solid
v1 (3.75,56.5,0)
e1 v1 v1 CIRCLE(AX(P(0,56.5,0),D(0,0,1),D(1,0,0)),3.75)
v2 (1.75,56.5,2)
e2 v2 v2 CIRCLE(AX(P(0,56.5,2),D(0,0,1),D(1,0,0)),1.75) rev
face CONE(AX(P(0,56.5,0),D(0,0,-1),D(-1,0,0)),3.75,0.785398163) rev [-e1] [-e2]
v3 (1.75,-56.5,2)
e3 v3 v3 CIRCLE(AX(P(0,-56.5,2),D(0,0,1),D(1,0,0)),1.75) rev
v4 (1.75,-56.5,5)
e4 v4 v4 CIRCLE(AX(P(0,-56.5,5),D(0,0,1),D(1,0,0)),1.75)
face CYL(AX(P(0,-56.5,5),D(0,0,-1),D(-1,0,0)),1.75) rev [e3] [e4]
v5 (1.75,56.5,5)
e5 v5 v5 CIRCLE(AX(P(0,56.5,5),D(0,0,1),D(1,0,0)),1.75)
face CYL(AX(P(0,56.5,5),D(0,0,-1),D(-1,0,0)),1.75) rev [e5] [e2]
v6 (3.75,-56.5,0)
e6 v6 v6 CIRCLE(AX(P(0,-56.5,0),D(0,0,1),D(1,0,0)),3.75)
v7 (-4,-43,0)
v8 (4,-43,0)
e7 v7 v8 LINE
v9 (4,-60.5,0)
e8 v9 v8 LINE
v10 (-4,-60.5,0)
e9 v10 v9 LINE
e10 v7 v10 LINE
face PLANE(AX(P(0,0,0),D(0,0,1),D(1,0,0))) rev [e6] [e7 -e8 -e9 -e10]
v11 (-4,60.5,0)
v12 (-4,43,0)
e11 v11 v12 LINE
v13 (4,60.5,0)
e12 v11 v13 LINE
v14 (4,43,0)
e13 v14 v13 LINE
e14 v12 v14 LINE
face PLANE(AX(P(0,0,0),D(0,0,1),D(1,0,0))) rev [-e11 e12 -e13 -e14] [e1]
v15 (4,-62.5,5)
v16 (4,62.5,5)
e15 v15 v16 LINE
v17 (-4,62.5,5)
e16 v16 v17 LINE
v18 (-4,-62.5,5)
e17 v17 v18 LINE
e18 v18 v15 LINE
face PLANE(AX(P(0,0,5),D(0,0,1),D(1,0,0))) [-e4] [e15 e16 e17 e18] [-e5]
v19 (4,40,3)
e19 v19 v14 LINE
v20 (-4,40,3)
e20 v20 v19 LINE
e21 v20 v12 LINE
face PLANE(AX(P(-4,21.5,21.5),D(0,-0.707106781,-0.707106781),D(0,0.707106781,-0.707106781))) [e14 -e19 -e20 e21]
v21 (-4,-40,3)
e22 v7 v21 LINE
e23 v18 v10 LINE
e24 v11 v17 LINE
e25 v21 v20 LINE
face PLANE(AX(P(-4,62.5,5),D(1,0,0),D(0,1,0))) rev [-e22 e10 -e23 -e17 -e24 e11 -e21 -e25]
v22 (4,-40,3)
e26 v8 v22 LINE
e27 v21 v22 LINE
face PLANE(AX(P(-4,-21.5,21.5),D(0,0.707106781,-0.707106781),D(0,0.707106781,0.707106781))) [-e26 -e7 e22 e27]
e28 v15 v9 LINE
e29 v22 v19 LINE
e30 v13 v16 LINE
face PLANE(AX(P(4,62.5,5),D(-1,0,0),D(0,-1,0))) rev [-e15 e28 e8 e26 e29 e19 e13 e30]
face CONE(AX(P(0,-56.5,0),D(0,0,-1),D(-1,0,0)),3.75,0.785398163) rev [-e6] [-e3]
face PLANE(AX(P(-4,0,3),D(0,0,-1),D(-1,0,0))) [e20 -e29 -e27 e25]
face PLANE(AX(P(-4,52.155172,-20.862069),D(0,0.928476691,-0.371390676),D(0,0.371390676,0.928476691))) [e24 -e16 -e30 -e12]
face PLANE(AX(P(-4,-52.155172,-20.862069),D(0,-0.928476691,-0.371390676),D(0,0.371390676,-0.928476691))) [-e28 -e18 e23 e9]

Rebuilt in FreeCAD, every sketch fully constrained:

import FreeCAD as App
import Part
import Sketcher

V = App.Vector


def edges_at(feature, points):
    """Names of the edges that pass closest to the given points."""
    edges = feature.Shape.Edges
    near = lambda p: min(range(len(edges)), key=lambda i: edges[i].distToShape(Part.Vertex(*p))[0])
    return sorted({f"Edge{near(p) + 1}" for p in points})


def add_polygon(sketch, points):
    """Adds a closed chain of lines whose ends are joined by coincident constraints."""
    first, n = sketch.GeometryCount, len(points)
    for a, b in zip(points, points[1:] + points[:1]):
        sketch.addGeometry(Part.LineSegment(App.Vector(*a, 0), App.Vector(*b, 0)), False)
    for i in range(n):
        sketch.addConstraint(Sketcher.Constraint("Coincident", first + i, 2, first + (i + 1) % n, 1))

doc = App.newDocument("Part")
body = doc.addObject("PartDesign::Body", "Body")

sketch1 = body.newObject("Sketcher::SketchObject", "Sketch")
sketch1.AttachmentSupport = (doc.getObject("XY_Plane"), [""])
sketch1.MapMode = "FlatFace"
add_polygon(sketch1, [(-4, -62.5), (4, -62.5), (4, 62.5), (-4, 62.5)])
sketch1.addGeometry(Part.Circle(V(0, -56.5, 0), V(0, 0, 1), 1.75), False)
sketch1.addGeometry(Part.Circle(V(0, 56.5, 0), V(0, 0, 1), 1.75), False)
sketch1.addConstraint(Sketcher.Constraint("Horizontal", 0))
sketch1.addConstraint(Sketcher.Constraint("Vertical", 1))
sketch1.addConstraint(Sketcher.Constraint("Horizontal", 2))
sketch1.addConstraint(Sketcher.Constraint("Vertical", 3))
sketch1.addConstraint(Sketcher.Constraint("Equal", 4, 5))
sketch1.addConstraint(Sketcher.Constraint("Symmetric", 4, 3, 5, 3, -1, 1))
sketch1.addConstraint(Sketcher.Constraint("Symmetric", 0, 2, 2, 2, -1, 1))
sketch1.addConstraint(Sketcher.Constraint("PointOnObject", 4, 3, -2))
sketch1.addConstraint(Sketcher.Constraint("Diameter", 4, 3.5))
sketch1.addConstraint(Sketcher.Constraint("DistanceX", 0, 1, 0, 2, 8.0))
sketch1.addConstraint(Sketcher.Constraint("DistanceY", 1, 1, 1, 2, 125.0))
sketch1.addConstraint(Sketcher.Constraint("DistanceY", 4, 3, 5, 3, 113.0))
pad1 = body.newObject("PartDesign::Pad", "Pad")
pad1.Profile = sketch1
pad1.Length = 5

sketch2 = body.newObject("Sketcher::SketchObject", "Sketch001")
sketch2.AttachmentSupport = (doc.getObject("YZ_Plane"), [""])
sketch2.MapMode = "FlatFace"
sketch2.AttachmentOffset = App.Placement(V(0, 0, 4), App.Rotation())
add_polygon(sketch2, [(-40, 3), (-43, 0), (43, 0), (40, 3)])
add_polygon(sketch2, [(-60.5, 0), (-62.5, 5), (-62.5, 0)])
add_polygon(sketch2, [(62.5, 5), (60.5, 0), (62.5, 0)])
sketch2.addConstraint(Sketcher.Constraint("Horizontal", 1))
sketch2.addConstraint(Sketcher.Constraint("Horizontal", 3))
sketch2.addConstraint(Sketcher.Constraint("Vertical", 5))
sketch2.addConstraint(Sketcher.Constraint("Horizontal", 6))
sketch2.addConstraint(Sketcher.Constraint("Horizontal", 8))
sketch2.addConstraint(Sketcher.Constraint("Vertical", 9))
sketch2.addConstraint(Sketcher.Constraint("Symmetric", 0, 2, 1, 2, -1, 1))
sketch2.addConstraint(Sketcher.Constraint("Symmetric", 6, 2, 7, 2, -1, 1))
sketch2.addConstraint(Sketcher.Constraint("Symmetric", 5, 2, 8, 2, -2))
sketch2.addConstraint(Sketcher.Constraint("Perpendicular", 0, 2))
sketch2.addConstraint(Sketcher.Constraint("Horizontal", 4, 2, 9, 2))
sketch2.addConstraint(Sketcher.Constraint("Equal", 0, 2))
sketch2.addConstraint(Sketcher.Constraint("DistanceX", 1, 1, 1, 2, 86.0))
sketch2.addConstraint(Sketcher.Constraint("DistanceX", 3, 2, 3, 1, 80.0))
sketch2.addConstraint(Sketcher.Constraint("DistanceX", 6, 1, 6, 2, 2.0))
sketch2.addConstraint(Sketcher.Constraint("DistanceY", 5, 2, 5, 1, 5.0))
sketch2.addConstraint(Sketcher.Constraint("DistanceX", 6, 2, 7, 2, 121.0))
pocket1 = body.newObject("PartDesign::Pocket", "Pocket")
pocket1.Profile = sketch2
pocket1.Type = "ThroughAll"
doc.recompute()

chamfer = body.newObject("PartDesign::Chamfer", "Chamfer")
chamfer.Base = (pocket1, edges_at(pocket1, [(-1.75, -56.5, 0), (-1.75, 56.5, 0)]))
chamfer.Size = 2

doc.recompute()
